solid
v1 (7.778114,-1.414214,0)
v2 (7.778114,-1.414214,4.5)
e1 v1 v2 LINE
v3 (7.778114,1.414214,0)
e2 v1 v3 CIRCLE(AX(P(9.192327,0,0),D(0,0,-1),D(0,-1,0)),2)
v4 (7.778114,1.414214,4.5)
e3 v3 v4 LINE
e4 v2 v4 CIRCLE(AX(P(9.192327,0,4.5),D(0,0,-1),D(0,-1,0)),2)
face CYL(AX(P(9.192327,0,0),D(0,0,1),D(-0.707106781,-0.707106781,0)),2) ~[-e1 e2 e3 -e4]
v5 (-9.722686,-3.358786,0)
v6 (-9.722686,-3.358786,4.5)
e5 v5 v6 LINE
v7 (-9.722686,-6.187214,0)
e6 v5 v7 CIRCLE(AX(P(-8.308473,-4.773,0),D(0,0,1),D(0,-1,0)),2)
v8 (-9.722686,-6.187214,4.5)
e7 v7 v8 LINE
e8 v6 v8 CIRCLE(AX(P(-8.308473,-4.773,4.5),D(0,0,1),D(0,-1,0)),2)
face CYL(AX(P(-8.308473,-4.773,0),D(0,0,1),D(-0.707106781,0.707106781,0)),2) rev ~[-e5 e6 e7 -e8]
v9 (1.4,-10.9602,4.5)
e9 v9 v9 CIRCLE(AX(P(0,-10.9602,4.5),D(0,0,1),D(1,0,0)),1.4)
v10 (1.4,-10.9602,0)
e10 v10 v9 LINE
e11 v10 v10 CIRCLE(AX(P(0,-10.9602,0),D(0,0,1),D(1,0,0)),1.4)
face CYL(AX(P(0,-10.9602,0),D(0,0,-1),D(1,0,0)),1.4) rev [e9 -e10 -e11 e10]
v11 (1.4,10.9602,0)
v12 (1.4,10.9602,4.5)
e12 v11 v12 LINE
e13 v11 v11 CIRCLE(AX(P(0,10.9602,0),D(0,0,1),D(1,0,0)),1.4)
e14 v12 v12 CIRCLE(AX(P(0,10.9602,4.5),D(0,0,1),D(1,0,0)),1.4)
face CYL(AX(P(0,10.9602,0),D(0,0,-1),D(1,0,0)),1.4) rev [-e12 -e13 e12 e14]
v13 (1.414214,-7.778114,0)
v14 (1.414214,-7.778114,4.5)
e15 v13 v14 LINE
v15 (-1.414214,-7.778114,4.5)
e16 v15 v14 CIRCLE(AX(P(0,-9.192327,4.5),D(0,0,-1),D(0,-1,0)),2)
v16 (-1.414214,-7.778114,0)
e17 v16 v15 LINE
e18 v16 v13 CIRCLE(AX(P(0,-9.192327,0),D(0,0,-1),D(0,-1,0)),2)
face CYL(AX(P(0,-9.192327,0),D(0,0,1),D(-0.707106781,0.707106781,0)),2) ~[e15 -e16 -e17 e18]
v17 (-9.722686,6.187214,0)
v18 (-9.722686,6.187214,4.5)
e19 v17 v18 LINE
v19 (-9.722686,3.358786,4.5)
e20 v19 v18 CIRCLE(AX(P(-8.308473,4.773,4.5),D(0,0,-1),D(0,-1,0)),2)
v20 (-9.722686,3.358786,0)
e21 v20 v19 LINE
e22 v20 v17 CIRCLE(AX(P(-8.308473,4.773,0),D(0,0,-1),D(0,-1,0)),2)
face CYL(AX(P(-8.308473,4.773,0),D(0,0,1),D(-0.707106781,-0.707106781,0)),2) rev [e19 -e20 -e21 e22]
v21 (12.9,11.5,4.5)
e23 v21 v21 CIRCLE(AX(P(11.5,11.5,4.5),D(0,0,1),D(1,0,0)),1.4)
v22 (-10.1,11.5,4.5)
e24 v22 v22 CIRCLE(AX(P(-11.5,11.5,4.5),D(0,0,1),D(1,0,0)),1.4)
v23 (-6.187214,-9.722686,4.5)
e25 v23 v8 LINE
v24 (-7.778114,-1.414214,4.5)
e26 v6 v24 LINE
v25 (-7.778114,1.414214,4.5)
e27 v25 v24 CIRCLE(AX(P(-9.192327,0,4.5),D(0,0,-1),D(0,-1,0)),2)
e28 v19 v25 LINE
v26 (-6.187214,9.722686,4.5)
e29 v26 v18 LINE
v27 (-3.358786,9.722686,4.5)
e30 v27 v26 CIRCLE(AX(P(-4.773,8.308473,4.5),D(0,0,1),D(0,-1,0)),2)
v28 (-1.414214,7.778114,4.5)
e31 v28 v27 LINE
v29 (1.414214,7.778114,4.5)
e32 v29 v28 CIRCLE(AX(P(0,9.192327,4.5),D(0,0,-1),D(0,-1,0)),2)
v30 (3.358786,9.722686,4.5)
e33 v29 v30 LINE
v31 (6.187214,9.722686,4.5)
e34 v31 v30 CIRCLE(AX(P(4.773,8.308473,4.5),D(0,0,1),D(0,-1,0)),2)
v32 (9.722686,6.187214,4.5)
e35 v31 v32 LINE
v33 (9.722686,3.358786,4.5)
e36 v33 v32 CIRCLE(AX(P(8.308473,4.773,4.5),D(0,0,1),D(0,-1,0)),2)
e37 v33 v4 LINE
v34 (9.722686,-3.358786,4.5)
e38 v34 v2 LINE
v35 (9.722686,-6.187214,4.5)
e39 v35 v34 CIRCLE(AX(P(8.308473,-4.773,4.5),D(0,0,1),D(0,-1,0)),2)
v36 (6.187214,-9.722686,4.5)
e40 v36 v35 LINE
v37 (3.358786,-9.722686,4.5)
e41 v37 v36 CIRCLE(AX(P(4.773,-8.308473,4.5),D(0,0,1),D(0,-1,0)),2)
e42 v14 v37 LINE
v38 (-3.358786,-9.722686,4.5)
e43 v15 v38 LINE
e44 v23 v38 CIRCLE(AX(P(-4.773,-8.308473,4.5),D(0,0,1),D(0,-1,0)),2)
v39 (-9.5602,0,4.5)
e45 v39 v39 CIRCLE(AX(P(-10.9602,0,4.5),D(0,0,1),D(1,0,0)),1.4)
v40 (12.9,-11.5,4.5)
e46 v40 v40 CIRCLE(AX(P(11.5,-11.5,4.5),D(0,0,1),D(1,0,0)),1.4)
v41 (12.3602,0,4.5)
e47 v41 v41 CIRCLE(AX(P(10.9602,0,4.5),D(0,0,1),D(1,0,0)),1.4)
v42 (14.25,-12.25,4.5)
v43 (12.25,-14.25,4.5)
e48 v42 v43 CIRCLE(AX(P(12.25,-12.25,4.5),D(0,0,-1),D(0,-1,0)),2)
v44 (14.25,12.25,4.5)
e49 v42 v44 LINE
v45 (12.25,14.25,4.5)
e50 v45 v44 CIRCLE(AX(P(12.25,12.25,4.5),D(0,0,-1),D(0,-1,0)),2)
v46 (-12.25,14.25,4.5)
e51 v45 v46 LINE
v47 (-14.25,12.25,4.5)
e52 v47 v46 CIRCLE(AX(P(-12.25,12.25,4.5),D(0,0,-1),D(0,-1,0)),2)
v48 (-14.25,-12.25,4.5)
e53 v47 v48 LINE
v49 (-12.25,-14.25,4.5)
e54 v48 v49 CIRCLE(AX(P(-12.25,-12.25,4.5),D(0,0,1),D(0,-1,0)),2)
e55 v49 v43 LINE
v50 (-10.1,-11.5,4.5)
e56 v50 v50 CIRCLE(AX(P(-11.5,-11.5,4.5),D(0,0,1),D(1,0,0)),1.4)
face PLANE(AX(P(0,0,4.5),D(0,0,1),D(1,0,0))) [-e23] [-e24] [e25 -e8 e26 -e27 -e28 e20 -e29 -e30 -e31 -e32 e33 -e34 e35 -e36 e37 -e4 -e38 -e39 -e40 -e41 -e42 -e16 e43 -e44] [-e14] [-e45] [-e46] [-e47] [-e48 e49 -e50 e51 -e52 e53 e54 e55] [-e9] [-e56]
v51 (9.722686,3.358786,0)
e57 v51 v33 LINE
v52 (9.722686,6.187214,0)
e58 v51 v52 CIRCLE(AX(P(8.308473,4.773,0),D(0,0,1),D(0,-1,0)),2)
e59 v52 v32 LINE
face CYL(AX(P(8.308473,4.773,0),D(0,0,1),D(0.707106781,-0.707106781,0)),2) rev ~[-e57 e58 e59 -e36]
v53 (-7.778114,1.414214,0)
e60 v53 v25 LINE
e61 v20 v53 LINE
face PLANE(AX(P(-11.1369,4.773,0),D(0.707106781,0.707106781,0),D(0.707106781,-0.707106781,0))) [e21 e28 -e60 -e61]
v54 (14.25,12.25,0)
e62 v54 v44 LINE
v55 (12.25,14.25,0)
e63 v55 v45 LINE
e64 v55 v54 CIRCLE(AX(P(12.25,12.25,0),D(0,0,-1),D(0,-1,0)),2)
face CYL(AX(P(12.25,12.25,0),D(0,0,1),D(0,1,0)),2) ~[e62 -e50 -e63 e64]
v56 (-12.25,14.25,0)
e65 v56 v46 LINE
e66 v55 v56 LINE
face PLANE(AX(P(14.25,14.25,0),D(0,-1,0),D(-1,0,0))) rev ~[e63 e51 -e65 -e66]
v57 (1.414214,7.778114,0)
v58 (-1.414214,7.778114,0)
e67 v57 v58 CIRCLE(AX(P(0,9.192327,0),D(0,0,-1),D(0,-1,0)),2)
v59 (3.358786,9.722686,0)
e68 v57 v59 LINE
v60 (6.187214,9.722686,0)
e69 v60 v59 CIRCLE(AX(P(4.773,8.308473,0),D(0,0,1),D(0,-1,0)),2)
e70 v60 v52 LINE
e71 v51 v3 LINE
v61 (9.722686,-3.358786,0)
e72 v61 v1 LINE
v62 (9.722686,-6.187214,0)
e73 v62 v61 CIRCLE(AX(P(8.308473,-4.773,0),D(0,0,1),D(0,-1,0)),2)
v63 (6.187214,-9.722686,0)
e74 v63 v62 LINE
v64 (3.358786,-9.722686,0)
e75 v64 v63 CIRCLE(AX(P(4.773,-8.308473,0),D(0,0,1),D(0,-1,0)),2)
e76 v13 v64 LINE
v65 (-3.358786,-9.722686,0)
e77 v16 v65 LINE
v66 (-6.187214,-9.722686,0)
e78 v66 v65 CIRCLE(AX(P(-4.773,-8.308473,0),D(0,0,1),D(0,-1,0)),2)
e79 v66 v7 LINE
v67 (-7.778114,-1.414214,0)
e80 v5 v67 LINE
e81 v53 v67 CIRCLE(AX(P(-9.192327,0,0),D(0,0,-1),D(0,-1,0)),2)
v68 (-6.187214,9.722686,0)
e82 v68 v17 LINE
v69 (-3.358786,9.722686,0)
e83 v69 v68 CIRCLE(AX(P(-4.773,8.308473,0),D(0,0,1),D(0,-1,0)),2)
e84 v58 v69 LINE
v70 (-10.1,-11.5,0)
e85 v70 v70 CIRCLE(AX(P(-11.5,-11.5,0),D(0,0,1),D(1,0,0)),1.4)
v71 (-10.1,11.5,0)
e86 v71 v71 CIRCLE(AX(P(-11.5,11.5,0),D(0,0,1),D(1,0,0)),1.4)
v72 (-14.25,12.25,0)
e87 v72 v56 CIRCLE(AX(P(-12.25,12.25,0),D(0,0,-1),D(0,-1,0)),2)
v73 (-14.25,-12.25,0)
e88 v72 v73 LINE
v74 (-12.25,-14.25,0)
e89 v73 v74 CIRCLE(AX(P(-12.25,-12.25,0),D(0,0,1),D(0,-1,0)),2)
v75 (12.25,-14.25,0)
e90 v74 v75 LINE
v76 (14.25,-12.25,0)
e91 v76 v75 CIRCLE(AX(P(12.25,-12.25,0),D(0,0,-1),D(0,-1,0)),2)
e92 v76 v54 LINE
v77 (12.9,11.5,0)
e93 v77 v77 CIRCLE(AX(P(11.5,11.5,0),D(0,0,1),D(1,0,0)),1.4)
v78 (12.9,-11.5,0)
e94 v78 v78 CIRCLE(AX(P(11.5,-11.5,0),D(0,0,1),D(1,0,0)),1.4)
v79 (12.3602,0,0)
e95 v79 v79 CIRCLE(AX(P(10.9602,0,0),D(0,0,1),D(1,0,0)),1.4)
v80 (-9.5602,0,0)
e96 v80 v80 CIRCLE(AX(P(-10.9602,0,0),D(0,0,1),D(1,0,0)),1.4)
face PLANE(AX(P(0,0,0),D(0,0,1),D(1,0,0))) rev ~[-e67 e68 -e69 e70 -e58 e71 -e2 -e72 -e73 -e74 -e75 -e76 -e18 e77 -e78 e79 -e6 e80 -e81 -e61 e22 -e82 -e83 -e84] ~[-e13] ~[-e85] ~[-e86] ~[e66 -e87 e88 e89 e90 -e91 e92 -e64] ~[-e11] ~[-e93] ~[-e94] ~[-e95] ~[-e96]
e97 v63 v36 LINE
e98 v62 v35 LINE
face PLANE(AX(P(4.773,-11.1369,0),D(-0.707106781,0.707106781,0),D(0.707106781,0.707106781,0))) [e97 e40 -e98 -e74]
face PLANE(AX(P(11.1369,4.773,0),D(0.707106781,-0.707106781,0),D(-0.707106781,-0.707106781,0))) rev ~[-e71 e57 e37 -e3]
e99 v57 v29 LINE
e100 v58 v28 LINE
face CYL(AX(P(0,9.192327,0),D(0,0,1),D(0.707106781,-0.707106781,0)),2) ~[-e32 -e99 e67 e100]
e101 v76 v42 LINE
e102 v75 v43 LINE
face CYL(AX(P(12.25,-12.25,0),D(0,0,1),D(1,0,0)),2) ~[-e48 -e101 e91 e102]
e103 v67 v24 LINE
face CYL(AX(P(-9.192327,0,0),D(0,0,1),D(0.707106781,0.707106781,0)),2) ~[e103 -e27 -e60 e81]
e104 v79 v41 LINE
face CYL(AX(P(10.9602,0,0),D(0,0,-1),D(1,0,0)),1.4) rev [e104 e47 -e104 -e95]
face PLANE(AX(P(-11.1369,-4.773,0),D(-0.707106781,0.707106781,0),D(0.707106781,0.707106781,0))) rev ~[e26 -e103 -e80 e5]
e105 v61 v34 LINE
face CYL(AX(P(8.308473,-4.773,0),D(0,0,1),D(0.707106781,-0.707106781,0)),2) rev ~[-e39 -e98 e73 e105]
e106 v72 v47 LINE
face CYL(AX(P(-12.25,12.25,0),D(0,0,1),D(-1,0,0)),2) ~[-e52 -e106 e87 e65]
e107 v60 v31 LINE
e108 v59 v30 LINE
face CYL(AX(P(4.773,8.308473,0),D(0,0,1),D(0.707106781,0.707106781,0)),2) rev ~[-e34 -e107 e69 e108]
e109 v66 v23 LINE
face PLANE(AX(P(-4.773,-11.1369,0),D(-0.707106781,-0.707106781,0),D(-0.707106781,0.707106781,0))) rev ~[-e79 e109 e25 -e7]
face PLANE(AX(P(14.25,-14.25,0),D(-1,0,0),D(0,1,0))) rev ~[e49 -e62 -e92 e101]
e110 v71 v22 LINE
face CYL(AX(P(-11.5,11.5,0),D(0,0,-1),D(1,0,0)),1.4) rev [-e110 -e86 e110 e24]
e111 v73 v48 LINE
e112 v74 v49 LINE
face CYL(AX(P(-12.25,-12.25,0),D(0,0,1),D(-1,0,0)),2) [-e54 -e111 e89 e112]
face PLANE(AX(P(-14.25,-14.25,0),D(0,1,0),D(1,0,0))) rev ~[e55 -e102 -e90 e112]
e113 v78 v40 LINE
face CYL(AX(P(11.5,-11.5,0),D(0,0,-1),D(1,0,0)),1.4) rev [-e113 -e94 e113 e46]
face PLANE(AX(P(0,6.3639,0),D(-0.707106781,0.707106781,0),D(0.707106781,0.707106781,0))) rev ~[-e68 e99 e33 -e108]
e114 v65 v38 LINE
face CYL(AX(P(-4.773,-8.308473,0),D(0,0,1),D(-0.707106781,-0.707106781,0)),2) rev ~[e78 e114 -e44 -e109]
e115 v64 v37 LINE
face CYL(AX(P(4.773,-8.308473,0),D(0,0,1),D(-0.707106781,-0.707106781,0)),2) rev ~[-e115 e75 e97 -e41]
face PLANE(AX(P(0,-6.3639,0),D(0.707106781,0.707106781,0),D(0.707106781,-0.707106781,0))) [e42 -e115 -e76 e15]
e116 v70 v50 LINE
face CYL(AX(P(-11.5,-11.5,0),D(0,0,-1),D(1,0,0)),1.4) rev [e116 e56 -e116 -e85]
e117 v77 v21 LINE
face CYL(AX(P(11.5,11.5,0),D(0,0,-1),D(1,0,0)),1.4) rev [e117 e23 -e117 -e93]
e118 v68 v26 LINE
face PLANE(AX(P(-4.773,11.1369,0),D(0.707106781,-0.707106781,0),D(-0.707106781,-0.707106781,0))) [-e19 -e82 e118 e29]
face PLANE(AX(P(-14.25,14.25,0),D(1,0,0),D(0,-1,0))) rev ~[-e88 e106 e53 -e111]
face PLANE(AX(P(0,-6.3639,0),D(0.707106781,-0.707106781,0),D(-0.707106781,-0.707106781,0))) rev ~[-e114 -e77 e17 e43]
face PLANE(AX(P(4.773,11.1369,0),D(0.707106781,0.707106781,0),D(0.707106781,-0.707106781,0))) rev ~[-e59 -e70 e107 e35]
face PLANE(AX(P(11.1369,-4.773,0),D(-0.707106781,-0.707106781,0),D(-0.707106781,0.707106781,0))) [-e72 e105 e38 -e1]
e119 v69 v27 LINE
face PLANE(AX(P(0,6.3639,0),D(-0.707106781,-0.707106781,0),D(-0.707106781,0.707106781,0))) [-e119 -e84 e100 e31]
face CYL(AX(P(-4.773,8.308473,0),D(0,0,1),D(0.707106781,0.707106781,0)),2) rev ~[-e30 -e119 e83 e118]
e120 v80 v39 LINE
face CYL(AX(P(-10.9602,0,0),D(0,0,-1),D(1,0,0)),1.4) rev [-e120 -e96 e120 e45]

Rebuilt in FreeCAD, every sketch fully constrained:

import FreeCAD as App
import Part
import Sketcher

V = App.Vector


def edges_at(feature, points):
    """Names of the edges that pass closest to the given points."""
    edges = feature.Shape.Edges
    near = lambda p: min(range(len(edges)), key=lambda i: edges[i].distToShape(Part.Vertex(*p))[0])
    return sorted({f"Edge{near(p) + 1}" for p in points})

doc = App.newDocument("Part")
params = doc.addObject("Spreadsheet::Sheet", "Params")
for row, (alias, value) in enumerate([
    ("sketch1_diameter", "2.8 mm"),
    ("sketch1_length", "9 mm"),
    ("sketch1_width", "28.5 mm"),
    ("sketch1_length2", "6.75 mm"),
    ("pad1_length", "4.5 mm"),
    ("fillet_radius", "2 mm"),
], start=1):
    params.set(f"A{row}", alias)
    params.set(f"B{row}", "=" + value)
    params.setAlias(f"B{row}", alias)

body = doc.addObject("PartDesign::Body", "Body")

sketch1 = body.newObject("Sketcher::SketchObject", "Sketch")
sketch1.AttachmentSupport = (doc.getObject("XY_Plane"), [""])
sketch1.MapMode = "FlatFace"
sketch1.addGeometry([
    Part.LineSegment(V(-14.2, 14.2, 0), V(-14.2, -14.2, 0)),
    Part.LineSegment(V(-14.2, -14.2, 0), V(14.2, -14.2, 0)),
    Part.LineSegment(V(14.2, -14.2, 0), V(14.2, 14.2, 0)),
    Part.LineSegment(V(14.2, 14.2, 0), V(-14.2, 14.2, 0)),
    Part.Circle(V(0, -11, 0), V(0, 0, 1), 1.4),
    Part.Circle(V(-11, 0, 0), V(0, 0, 1), 1.4),
    Part.LineSegment(V(-6.4, 0, 0), V(-11.1, 4.8, 0)),
    Part.LineSegment(V(-11.1, 4.8, 0), V(-4.8, 11.1, 0)),
    Part.LineSegment(V(-4.8, 11.1, 0), V(0, 6.4, 0)),
    Part.LineSegment(V(0, 6.4, 0), V(4.8, 11.1, 0)),
    Part.LineSegment(V(4.8, 11.1, 0), V(11.1, 4.8, 0)),
    Part.LineSegment(V(11.1, 4.8, 0), V(6.4, 0, 0)),
    Part.LineSegment(V(6.4, 0, 0), V(11.1, -4.8, 0)),
    Part.LineSegment(V(11.1, -4.8, 0), V(4.8, -11.1, 0)),
    Part.LineSegment(V(4.8, -11.1, 0), V(0, -6.4, 0)),
    Part.LineSegment(V(0, -6.4, 0), V(-4.8, -11.1, 0)),
    Part.LineSegment(V(-4.8, -11.1, 0), V(-11.1, -4.8, 0)),
    Part.LineSegment(V(-11.1, -4.8, 0), V(-6.4, 0, 0)),
    Part.Circle(V(11, 0, 0), V(0, 0, 1), 1.4),
    Part.Circle(V(0, 11, 0), V(0, 0, 1), 1.4),
    Part.Circle(V(-11.5, -11.5, 0), V(0, 0, 1), 1.4),
    Part.Circle(V(11.5, -11.5, 0), V(0, 0, 1), 1.4),
    Part.Circle(V(-11.5, 11.5, 0), V(0, 0, 1), 1.4),
    Part.Circle(V(11.5, 11.5, 0), V(0, 0, 1), 1.4),
], False)
sketch1.addConstraint([
    Sketcher.Constraint("Coincident", 0, 2, 1, 1),
    Sketcher.Constraint("Coincident", 1, 2, 2, 1),
    Sketcher.Constraint("Coincident", 2, 2, 3, 1),
    Sketcher.Constraint("Coincident", 3, 2, 0, 1),
    Sketcher.Constraint("Coincident", 6, 2, 7, 1),
    Sketcher.Constraint("Coincident", 7, 2, 8, 1),
    Sketcher.Constraint("Coincident", 8, 2, 9, 1),
    Sketcher.Constraint("Coincident", 9, 2, 10, 1),
    Sketcher.Constraint("Coincident", 10, 2, 11, 1),
    Sketcher.Constraint("Coincident", 11, 2, 12, 1),
    Sketcher.Constraint("Coincident", 12, 2, 13, 1),
    Sketcher.Constraint("Coincident", 13, 2, 14, 1),
    Sketcher.Constraint("Coincident", 14, 2, 15, 1),
    Sketcher.Constraint("Coincident", 15, 2, 16, 1),
    Sketcher.Constraint("Coincident", 16, 2, 17, 1),
    Sketcher.Constraint("Coincident", 17, 2, 6, 1),
    Sketcher.Constraint("Vertical", 0),
    Sketcher.Constraint("Horizontal", 1),
    Sketcher.Constraint("Vertical", 2),
    Sketcher.Constraint("Horizontal", 3),
    Sketcher.Constraint("Equal", 4, 5),
    Sketcher.Constraint("Equal", 5, 18),
    Sketcher.Constraint("Equal", 18, 19),
    Sketcher.Constraint("Equal", 19, 20),
    Sketcher.Constraint("Equal", 20, 21),
    Sketcher.Constraint("Equal", 21, 22),
    Sketcher.Constraint("Equal", 22, 23),
    Sketcher.Constraint("Symmetric", 5, 3, 18, 3, -1, 1),
    Sketcher.Constraint("Symmetric", 4, 3, 19, 3, -1, 1),
    Sketcher.Constraint("Symmetric", 21, 3, 22, 3, -1, 1),
    Sketcher.Constraint("Symmetric", 20, 3, 23, 3, -1, 1),
    Sketcher.Constraint("Symmetric", 0, 2, 2, 2, -1, 1),
    Sketcher.Constraint("Symmetric", 6, 2, 12, 2, -1, 1),
    Sketcher.Constraint("Symmetric", 7, 2, 13, 2, -1, 1),
    Sketcher.Constraint("Symmetric", 8, 2, 14, 2, -1, 1),
    Sketcher.Constraint("Symmetric", 9, 2, 15, 2, -1, 1),
    Sketcher.Constraint("Symmetric", 10, 2, 16, 2, -1, 1),
    Sketcher.Constraint("Symmetric", 11, 2, 17, 2, -1, 1),
    Sketcher.Constraint("Symmetric", 20, 3, 21, 3, -2),
    Sketcher.Constraint("Symmetric", 7, 2, 9, 2, -2),
    Sketcher.Constraint("Symmetric", 6, 2, 10, 2, -2),
    Sketcher.Constraint("PointOnObject", 4, 3, -2),
    Sketcher.Constraint("PointOnObject", 5, 3, -1),
    Sketcher.Constraint("PointOnObject", 8, 2, -2),
    Sketcher.Constraint("PointOnObject", 11, 2, -1),
    Sketcher.Constraint("Perpendicular", 6, 7),
    Sketcher.Constraint("Perpendicular", 7, 8),
    Sketcher.Constraint("Perpendicular", 8, 9),
    Sketcher.Constraint("Equal", 3, 0),
    Sketcher.Constraint("Equal", 6, 8),
    Sketcher.Constraint("Diameter", 4, 2.8),
    Sketcher.Constraint("Distance", 7, 9.0),
    Sketcher.Constraint("DistanceX", 1, 1, 1, 2, 28.5),
    Sketcher.Constraint("DistanceX", 20, 3, 21, 3, 23.0),
    Sketcher.Constraint("DistanceY", 20, 3, 22, 3, 23.0),
    Sketcher.Constraint("Distance", 6, 6.75),
    Sketcher.Constraint("DistanceY", 4, 3, -1, 1, 10.9602),
    Sketcher.Constraint("DistanceX", 5, 3, -1, 1, 10.9602),
])
sketch1.setExpression("Constraints[50]", "Params.sketch1_diameter")
sketch1.setExpression("Constraints[51]", "Params.sketch1_length")
sketch1.setExpression("Constraints[52]", "Params.sketch1_width")
sketch1.setExpression("Constraints[55]", "Params.sketch1_length2")
pad1 = body.newObject("PartDesign::Pad", "Pad")
pad1.Profile = sketch1
pad1.setExpression("Length", "Params.pad1_length")
doc.recompute()

fillet = body.newObject("PartDesign::Fillet", "Fillet")
fillet.Base = (pad1, edges_at(pad1, [
    (14.25, 14.25, 2.25),
    (14.25, -14.25, 2.25),
    (-14.25, -14.25, 2.25),
    (-14.25, 14.25, 2.25),
    (0, 6.364, 2.25),
    (4.773, 11.137, 2.25),
    (-4.773, 11.137, 2.25),
    (-11.137, 4.773, 2.25),
    (-6.364, 0, 2.25),
    (-11.137, -4.773, 2.25),
    (-4.773, -11.137, 2.25),
    (0, -6.364, 2.25),
    (4.773, -11.137, 2.25),
    (11.137, -4.773, 2.25),
    (6.364, 0, 2.25),
    (11.137, 4.773, 2.25),
]))
fillet.setExpression("Radius", "Params.fillet_radius")

doc.recompute()
